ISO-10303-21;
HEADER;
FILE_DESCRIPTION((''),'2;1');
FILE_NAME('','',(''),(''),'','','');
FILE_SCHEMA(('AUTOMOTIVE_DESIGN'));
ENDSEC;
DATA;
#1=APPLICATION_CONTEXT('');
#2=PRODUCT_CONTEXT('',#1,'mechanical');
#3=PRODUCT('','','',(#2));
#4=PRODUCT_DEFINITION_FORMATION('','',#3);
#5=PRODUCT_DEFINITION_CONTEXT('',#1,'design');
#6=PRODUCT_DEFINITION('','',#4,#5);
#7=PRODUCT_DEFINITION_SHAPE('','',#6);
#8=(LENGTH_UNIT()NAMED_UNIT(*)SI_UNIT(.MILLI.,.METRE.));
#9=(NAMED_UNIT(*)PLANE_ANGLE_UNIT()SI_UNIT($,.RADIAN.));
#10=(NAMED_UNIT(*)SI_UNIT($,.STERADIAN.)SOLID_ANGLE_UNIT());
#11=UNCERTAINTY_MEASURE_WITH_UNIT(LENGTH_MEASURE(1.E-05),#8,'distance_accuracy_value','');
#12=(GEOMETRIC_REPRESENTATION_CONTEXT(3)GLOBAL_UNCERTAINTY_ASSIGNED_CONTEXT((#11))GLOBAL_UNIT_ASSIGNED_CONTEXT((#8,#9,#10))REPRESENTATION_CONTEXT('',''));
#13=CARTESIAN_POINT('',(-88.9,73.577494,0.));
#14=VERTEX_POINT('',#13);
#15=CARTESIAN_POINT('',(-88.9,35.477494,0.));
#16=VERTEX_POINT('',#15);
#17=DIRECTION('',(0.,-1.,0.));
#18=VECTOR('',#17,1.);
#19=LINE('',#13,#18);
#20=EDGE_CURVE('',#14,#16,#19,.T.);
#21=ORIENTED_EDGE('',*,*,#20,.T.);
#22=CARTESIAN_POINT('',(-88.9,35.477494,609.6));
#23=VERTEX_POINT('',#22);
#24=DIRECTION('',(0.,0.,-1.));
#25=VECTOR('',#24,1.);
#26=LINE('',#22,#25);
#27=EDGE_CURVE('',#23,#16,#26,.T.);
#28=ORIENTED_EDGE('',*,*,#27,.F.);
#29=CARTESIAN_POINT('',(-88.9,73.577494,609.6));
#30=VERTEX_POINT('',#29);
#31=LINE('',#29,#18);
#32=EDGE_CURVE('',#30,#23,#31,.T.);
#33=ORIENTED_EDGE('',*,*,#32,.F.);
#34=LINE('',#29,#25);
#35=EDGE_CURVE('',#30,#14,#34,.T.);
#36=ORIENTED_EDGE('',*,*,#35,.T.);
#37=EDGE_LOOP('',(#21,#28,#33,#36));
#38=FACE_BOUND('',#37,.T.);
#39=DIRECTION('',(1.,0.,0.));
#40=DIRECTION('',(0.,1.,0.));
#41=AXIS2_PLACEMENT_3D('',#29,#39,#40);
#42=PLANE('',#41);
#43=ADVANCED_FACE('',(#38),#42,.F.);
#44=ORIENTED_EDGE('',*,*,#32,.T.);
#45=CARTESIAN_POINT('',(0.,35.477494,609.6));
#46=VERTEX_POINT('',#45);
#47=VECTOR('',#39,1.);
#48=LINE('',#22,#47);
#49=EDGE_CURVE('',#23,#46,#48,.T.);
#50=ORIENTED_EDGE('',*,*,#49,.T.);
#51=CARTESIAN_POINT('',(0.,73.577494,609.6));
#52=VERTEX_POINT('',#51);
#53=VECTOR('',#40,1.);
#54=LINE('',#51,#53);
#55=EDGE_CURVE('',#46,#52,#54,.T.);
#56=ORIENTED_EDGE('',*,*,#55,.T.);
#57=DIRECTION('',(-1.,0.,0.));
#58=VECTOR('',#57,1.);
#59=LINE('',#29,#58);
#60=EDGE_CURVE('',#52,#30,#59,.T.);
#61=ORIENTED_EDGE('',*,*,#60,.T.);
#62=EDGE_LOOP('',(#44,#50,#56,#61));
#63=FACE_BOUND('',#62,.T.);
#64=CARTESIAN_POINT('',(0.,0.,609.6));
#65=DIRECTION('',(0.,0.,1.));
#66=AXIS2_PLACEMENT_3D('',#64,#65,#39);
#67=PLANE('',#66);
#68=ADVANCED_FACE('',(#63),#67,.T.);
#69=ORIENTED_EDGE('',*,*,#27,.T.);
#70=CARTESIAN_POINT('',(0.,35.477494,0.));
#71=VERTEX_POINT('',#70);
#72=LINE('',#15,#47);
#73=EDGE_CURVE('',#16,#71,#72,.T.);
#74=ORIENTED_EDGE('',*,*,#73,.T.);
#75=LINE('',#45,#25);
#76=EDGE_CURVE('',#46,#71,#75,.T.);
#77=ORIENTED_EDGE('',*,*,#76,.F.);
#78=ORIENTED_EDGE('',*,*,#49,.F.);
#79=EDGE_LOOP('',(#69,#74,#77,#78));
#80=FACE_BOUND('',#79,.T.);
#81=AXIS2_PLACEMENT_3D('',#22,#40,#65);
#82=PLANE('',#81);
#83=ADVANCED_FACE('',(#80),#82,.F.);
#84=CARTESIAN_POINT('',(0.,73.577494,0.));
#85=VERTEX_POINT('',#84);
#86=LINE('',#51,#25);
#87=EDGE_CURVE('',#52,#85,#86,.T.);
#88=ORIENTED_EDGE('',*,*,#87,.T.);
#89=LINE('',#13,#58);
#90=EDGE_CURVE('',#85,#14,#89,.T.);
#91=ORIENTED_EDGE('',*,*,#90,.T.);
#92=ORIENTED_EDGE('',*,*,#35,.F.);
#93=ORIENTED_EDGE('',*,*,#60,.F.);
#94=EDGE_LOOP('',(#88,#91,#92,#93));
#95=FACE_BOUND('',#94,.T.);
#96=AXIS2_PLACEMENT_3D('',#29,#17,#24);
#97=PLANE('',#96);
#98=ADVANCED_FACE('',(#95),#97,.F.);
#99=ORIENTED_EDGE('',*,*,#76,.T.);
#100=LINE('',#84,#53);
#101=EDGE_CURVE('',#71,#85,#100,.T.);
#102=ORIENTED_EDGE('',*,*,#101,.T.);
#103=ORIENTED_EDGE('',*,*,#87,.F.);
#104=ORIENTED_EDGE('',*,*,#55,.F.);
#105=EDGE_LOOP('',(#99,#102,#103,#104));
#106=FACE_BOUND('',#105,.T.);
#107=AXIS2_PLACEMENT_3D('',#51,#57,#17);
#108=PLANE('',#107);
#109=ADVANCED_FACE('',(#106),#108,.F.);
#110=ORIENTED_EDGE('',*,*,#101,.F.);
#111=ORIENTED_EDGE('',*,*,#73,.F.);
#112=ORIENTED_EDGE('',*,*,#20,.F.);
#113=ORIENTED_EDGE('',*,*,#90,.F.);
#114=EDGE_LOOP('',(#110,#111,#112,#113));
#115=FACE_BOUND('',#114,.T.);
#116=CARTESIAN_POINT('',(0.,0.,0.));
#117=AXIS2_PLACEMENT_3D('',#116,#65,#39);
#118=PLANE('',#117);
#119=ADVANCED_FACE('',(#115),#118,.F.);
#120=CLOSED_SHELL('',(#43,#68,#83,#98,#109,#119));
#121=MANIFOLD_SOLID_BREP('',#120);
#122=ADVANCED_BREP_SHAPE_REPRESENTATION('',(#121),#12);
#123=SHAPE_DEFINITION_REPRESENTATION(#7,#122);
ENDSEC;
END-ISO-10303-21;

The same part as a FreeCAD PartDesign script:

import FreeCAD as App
import Part
import Sketcher
Q = App.Units.Quantity

doc = App.newDocument("Part")
body = doc.addObject("PartDesign::Body", "Body")

# Sketch on XY plane
sketch1 = doc.addObject("Sketcher::SketchObject", "Sketch")
body.addObject(sketch1)
sketch1.AttachmentSupport = (doc.XY_Plane, [""])
sketch1.MapMode = "FlatFace"
sketch1.addGeometry(Part.LineSegment(App.Vector(-89, 74, 0), App.Vector(-89, 35, 0)), False)
sketch1.addGeometry(Part.LineSegment(App.Vector(-89, 35, 0), App.Vector(0, 35, 0)), False)
sketch1.addGeometry(Part.LineSegment(App.Vector(0, 35, 0), App.Vector(0, 74, 0)), False)
sketch1.addGeometry(Part.LineSegment(App.Vector(0, 74, 0), App.Vector(-89, 74, 0)), False)
sketch1.addConstraint(Sketcher.Constraint("Coincident", 0, 2, 1, 1))
sketch1.addConstraint(Sketcher.Constraint("Coincident", 1, 2, 2, 1))
sketch1.addConstraint(Sketcher.Constraint("Coincident", 2, 2, 3, 1))
sketch1.addConstraint(Sketcher.Constraint("Coincident", 3, 2, 0, 1))
sketch1.addConstraint(Sketcher.Constraint("Vertical", 0))
sketch1.addConstraint(Sketcher.Constraint("Horizontal", 1))
sketch1.addConstraint(Sketcher.Constraint("Vertical", 2))
sketch1.addConstraint(Sketcher.Constraint("Horizontal", 3))
sketch1.addConstraint(Sketcher.Constraint("PointOnObject", 1, 2, -2))
sketch1.addConstraint(Sketcher.Constraint("DistanceX", 1, 1, 1, 2, Q("3.5 in")))
sketch1.addConstraint(Sketcher.Constraint("DistanceY", 0, 2, 0, 1, Q("1.5 in")))
sketch1.addConstraint(Sketcher.Constraint("DistanceY", -1, 1, 0, 2, Q("35.477494 mm")))
pad1 = doc.addObject("PartDesign::Pad", "Pad")
body.addObject(pad1)
pad1.Profile = sketch1
pad1.Length = Q("24 in")

doc.recompute()
